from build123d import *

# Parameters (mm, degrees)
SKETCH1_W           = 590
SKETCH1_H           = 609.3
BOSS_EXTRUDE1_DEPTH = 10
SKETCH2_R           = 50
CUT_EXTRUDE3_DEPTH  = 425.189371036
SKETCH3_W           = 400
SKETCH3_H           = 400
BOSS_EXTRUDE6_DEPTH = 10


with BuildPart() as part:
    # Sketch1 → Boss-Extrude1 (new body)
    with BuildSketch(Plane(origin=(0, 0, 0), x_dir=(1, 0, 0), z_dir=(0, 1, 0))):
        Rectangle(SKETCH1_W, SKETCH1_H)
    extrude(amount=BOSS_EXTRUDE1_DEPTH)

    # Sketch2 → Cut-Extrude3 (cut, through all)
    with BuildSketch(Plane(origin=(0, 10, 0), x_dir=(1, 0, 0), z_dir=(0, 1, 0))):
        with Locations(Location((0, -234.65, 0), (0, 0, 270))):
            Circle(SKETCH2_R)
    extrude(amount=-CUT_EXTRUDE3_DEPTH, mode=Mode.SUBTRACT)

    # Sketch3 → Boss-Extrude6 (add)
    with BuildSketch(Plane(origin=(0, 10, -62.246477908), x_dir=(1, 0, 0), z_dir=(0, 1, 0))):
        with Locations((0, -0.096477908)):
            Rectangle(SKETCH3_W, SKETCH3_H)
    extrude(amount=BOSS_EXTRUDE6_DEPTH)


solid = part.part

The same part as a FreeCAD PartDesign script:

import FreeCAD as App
import Part
import Sketcher

doc = App.newDocument("Part")
body = doc.addObject("PartDesign::Body", "Body")

sketch1 = doc.addObject("Sketcher::SketchObject", "Sketch")
body.addObject(sketch1)
sketch1.AttachmentSupport = (doc.XZ_Plane, [""])
sketch1.MapMode = "FlatFace"
sketch1.addGeometry([
    Part.LineSegment(App.Vector(-295, -304.65, 0), App.Vector(-295, 304.65, 0)),
    Part.LineSegment(App.Vector(-295, 304.65, 0), App.Vector(295, 304.65, 0)),
    Part.LineSegment(App.Vector(295, 304.65, 0), App.Vector(295, -304.65, 0)),
    Part.LineSegment(App.Vector(295, -304.65, 0), App.Vector(-295, -304.65, 0)),
], False)
sketch1.addConstraint([
    Sketcher.Constraint("Coincident", 0, 2, 1, 1),
    Sketcher.Constraint("Coincident", 1, 2, 2, 1),
    Sketcher.Constraint("Coincident", 2, 2, 3, 1),
    Sketcher.Constraint("Coincident", 3, 2, 0, 1),
    Sketcher.Constraint("Vertical", 0),
    Sketcher.Constraint("Horizontal", 1),
    Sketcher.Constraint("Vertical", 2),
    Sketcher.Constraint("Horizontal", 3),
    Sketcher.Constraint("Symmetric", 0, 2, 2, 2, -1, 1),
    Sketcher.Constraint("DistanceX", 1, 1, 1, 2, 590.0),
    Sketcher.Constraint("DistanceY", 0, 1, 0, 2, 609.3),
])
pad1 = doc.addObject("PartDesign::Pad", "Pad")
body.addObject(pad1)
pad1.Profile = sketch1
pad1.Length = 10
pad1.Reversed = True

sketch2 = doc.addObject("Sketcher::SketchObject", "Sketch001")
body.addObject(sketch2)
sketch2.AttachmentSupport = (doc.XZ_Plane, [""])
sketch2.MapMode = "FlatFace"
sketch2.AttachmentOffset = App.Placement(App.Vector(0, 0, -10), App.Rotation())
sketch2.addGeometry(Part.Circle(App.Vector(0, 234.65, 0), App.Vector(0, 0, 1), 50), False)
sketch2.addConstraint([
    Sketcher.Constraint("PointOnObject", 0, 3, -2),
    Sketcher.Constraint("Diameter", 0, 100.0),
    Sketcher.Constraint("DistanceY", -1, 1, 0, 3, 234.65),
])
pocket1 = doc.addObject("PartDesign::Pocket", "Pocket")
body.addObject(pocket1)
pocket1.Profile = sketch2
pocket1.Type = "ThroughAll"
pocket1.Reversed = True

sketch3 = doc.addObject("Sketcher::SketchObject", "Sketch002")
body.addObject(sketch3)
sketch3.AttachmentSupport = (doc.XZ_Plane, [""])
sketch3.MapMode = "FlatFace"
sketch3.AttachmentOffset = App.Placement(App.Vector(0, 0, -10), App.Rotation())
sketch3.addGeometry([
    Part.LineSegment(App.Vector(-200, -262.15, 0), App.Vector(-200, 137.85, 0)),
    Part.LineSegment(App.Vector(-200, 137.85, 0), App.Vector(200, 137.85, 0)),
    Part.LineSegment(App.Vector(200, 137.85, 0), App.Vector(200, -262.15, 0)),
    Part.LineSegment(App.Vector(200, -262.15, 0), App.Vector(-200, -262.15, 0)),
], False)
sketch3.addConstraint([
    Sketcher.Constraint("Coincident", 0, 2, 1, 1),
    Sketcher.Constraint("Coincident", 1, 2, 2, 1),
    Sketcher.Constraint("Coincident", 2, 2, 3, 1),
    Sketcher.Constraint("Coincident", 3, 2, 0, 1),
    Sketcher.Constraint("Vertical", 0),
    Sketcher.Constraint("Horizontal", 1),
    Sketcher.Constraint("Vertical", 2),
    Sketcher.Constraint("Horizontal", 3),
    Sketcher.Constraint("Equal", 3, 0),
    Sketcher.Constraint("DistanceX", 1, 1, 1, 2, 400.0),
    Sketcher.Constraint("DistanceX", 0, 2, -1, 1, 200.0),
    Sketcher.Constraint("DistanceY", -1, 1, 0, 2, 137.85),
])
pad2 = doc.addObject("PartDesign::Pad", "Pad001")
body.addObject(pad2)
pad2.Profile = sketch3
pad2.Length = 10
pad2.Reversed = True

doc.recompute()
